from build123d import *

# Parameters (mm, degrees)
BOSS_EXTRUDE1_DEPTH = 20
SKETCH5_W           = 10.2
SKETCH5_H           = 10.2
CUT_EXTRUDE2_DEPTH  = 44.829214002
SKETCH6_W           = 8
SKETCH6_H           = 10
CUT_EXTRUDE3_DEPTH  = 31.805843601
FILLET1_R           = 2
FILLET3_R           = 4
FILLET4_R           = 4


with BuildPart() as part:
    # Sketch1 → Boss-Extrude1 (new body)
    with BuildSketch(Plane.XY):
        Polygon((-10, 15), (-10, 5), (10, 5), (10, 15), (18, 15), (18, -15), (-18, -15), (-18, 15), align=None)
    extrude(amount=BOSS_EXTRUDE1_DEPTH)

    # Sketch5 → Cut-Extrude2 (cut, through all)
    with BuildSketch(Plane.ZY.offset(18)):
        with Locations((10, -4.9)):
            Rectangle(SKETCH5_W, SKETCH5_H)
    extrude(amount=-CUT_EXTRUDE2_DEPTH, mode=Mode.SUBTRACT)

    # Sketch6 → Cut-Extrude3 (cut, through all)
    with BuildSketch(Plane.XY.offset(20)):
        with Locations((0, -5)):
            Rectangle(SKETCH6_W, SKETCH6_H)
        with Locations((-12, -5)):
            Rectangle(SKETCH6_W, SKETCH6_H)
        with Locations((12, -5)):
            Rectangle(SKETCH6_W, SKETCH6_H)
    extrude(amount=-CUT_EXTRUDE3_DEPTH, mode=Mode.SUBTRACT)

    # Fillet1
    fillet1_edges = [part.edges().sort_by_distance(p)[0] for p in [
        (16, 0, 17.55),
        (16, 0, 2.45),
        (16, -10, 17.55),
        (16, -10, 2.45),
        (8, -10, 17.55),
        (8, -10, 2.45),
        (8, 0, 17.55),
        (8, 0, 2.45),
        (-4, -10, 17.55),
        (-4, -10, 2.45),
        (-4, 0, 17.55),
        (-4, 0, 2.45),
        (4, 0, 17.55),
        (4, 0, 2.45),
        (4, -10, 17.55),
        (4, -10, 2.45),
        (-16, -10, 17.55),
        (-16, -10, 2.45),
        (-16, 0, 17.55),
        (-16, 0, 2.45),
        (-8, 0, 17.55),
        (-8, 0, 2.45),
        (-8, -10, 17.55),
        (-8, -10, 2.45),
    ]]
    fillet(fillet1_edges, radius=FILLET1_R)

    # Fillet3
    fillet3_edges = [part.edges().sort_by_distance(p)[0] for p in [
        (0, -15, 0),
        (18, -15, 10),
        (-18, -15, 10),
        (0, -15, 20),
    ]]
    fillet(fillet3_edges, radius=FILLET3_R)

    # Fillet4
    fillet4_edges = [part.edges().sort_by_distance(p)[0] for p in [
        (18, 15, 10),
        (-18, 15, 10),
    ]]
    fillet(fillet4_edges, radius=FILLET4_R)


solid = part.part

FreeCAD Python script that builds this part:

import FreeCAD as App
import Part
import Sketcher

V = App.Vector


def edges_at(feature, points):
    """Names of the edges that pass closest to the given points."""
    edges = feature.Shape.Edges
    near = lambda p: min(range(len(edges)), key=lambda i: edges[i].distToShape(Part.Vertex(*p))[0])
    return sorted({f"Edge{near(p) + 1}" for p in points})


def add_polygon(sketch, points):
    """Adds a closed chain of lines whose ends are joined by coincident constraints."""
    first, n = sketch.GeometryCount, len(points)
    for a, b in zip(points, points[1:] + points[:1]):
        sketch.addGeometry(Part.LineSegment(App.Vector(*a, 0), App.Vector(*b, 0)), False)
    for i in range(n):
        sketch.addConstraint(Sketcher.Constraint("Coincident", first + i, 2, first + (i + 1) % n, 1))

doc = App.newDocument("Part")
body = doc.addObject("PartDesign::Body", "Body")

# Sketch on XY plane
sketch1 = doc.addObject("Sketcher::SketchObject", "Sketch")
body.addObject(sketch1)
sketch1.AttachmentSupport = (doc.XY_Plane, [""])
sketch1.MapMode = "FlatFace"
add_polygon(sketch1, [(-10, 5), (-10, 15), (-18, 15), (-18, -15), (18, -15), (18, 15), (10, 15), (10, 5)])  # lines 0-7
sketch1.addConstraint([
    Sketcher.Constraint("Vertical", 0),
    Sketcher.Constraint("Horizontal", 1),
    Sketcher.Constraint("Vertical", 2),
    Sketcher.Constraint("Horizontal", 3),
    Sketcher.Constraint("Vertical", 4),
    Sketcher.Constraint("Horizontal", 5),
    Sketcher.Constraint("Vertical", 6),
    Sketcher.Constraint("Horizontal", 7),
    Sketcher.Constraint("Symmetric", 1, 2, 3, 2, -1, 1),
    Sketcher.Constraint("Symmetric", 0, 2, 5, 2, -2),
    Sketcher.Constraint("DistanceX", 1, 2, 1, 1, 8.0),
    Sketcher.Constraint("DistanceX", 3, 1, 3, 2, 36.0),
    Sketcher.Constraint("DistanceY", 0, 1, 0, 2, 10.0),
    Sketcher.Constraint("DistanceY", 2, 2, 2, 1, 30.0),
])
pad1 = doc.addObject("PartDesign::Pad", "Pad")
body.addObject(pad1)
pad1.Profile = sketch1
pad1.Length = 20

# Sketch on YZ plane
sketch2 = doc.addObject("Sketcher::SketchObject", "Sketch001")
body.addObject(sketch2)
sketch2.AttachmentSupport = (doc.YZ_Plane, [""])
sketch2.MapMode = "FlatFace"
sketch2.AttachmentOffset = App.Placement(V(0, 0, -18), App.Rotation())
add_polygon(sketch2, [(0, 5), (-10, 5), (-10, 15), (0, 15)])  # lines 0-3
sketch2.addConstraint([
    Sketcher.Constraint("Horizontal", 0),
    Sketcher.Constraint("Vertical", 1),
    Sketcher.Constraint("Horizontal", 2),
    Sketcher.Constraint("Vertical", 3),
    Sketcher.Constraint("Equal", 2, 1),
    Sketcher.Constraint("DistanceX", 0, 2, 0, 1, 10.2),
    Sketcher.Constraint("DistanceX", 0, 2, -1, 1, 10.0),
    Sketcher.Constraint("DistanceY", -1, 1, 0, 2, 4.9),
])
pocket1 = doc.addObject("PartDesign::Pocket", "Pocket")
body.addObject(pocket1)
pocket1.Profile = sketch2
pocket1.Type = "ThroughAll"
pocket1.Reversed = True

# Sketch on XY plane
sketch3 = doc.addObject("Sketcher::SketchObject", "Sketch002")
body.addObject(sketch3)
sketch3.AttachmentSupport = (doc.XY_Plane, [""])
sketch3.MapMode = "FlatFace"
sketch3.AttachmentOffset = App.Placement(V(0, 0, 20), App.Rotation())
add_polygon(sketch3, [(-4, 0), (-4, -10), (4, -10), (4, 0)])  # lines 0-3
add_polygon(sketch3, [(-16, 0), (-16, -10), (-8, -10), (-8, 0)])  # lines 4-7
add_polygon(sketch3, [(8, 0), (8, -10), (16, -10), (16, 0)])  # lines 8-11
sketch3.addConstraint([
    Sketcher.Constraint("Vertical", 0),
    Sketcher.Constraint("Horizontal", 1),
    Sketcher.Constraint("Vertical", 2),
    Sketcher.Constraint("Horizontal", 3),
    Sketcher.Constraint("Vertical", 4),
    Sketcher.Constraint("Horizontal", 5),
    Sketcher.Constraint("Vertical", 6),
    Sketcher.Constraint("Horizontal", 7),
    Sketcher.Constraint("Vertical", 8),
    Sketcher.Constraint("Horizontal", 9),
    Sketcher.Constraint("Vertical", 10),
    Sketcher.Constraint("Horizontal", 11),
    Sketcher.Constraint("Symmetric", 2, 2, 3, 2, -1, 1),
    Sketcher.Constraint("Symmetric", 7, 2, 10, 2, -1, 1),
    Sketcher.Constraint("Symmetric", 5, 2, 8, 2, -2),
    Sketcher.Constraint("PointOnObject", 6, 2, -1),
    Sketcher.Constraint("Horizontal", 1, 2, 4, 2),
    Sketcher.Constraint("Equal", 3, 5),
    Sketcher.Constraint("DistanceX", 1, 1, 1, 2, 8.0),
    Sketcher.Constraint("DistanceY", 0, 2, 0, 1, 10.0),
    Sketcher.Constraint("DistanceX", 4, 2, -1, 1, 16.0),
])
pocket2 = doc.addObject("PartDesign::Pocket", "Pocket001")
body.addObject(pocket2)
pocket2.Profile = sketch3
pocket2.Type = "ThroughAll"
doc.recompute()

fillet = doc.addObject("PartDesign::Fillet", "Fillet")
body.addObject(fillet)
fillet.Base = (pocket2, edges_at(pocket2, [
    (16, 0, 17.55),
    (16, 0, 2.45),
    (16, -10, 17.55),
    (16, -10, 2.45),
    (8, -10, 17.55),
    (8, -10, 2.45),
    (8, 0, 17.55),
    (8, 0, 2.45),
    (-4, -10, 17.55),
    (-4, -10, 2.45),
    (-4, 0, 17.55),
    (-4, 0, 2.45),
    (4, 0, 17.55),
    (4, 0, 2.45),
    (4, -10, 17.55),
    (4, -10, 2.45),
    (-16, -10, 17.55),
    (-16, -10, 2.45),
    (-16, 0, 17.55),
    (-16, 0, 2.45),
    (-8, 0, 17.55),
    (-8, 0, 2.45),
    (-8, -10, 17.55),
    (-8, -10, 2.45),
]))
fillet.Radius = 2
doc.recompute()

fillet2 = doc.addObject("PartDesign::Fillet", "Fillet001")
body.addObject(fillet2)
fillet2.Base = (fillet, edges_at(fillet, [
    (0, -15, 0),
    (18, -15, 10),
    (-18, -15, 10),
    (0, -15, 20),
]))
fillet2.Radius = 4
doc.recompute()

fillet3 = doc.addObject("PartDesign::Fillet", "Fillet002")
body.addObject(fillet3)
fillet3.Base = (fillet2, edges_at(fillet2, [(18, 15, 10), (-18, 15, 10)]))
fillet3.Radius = 4

doc.recompute()
